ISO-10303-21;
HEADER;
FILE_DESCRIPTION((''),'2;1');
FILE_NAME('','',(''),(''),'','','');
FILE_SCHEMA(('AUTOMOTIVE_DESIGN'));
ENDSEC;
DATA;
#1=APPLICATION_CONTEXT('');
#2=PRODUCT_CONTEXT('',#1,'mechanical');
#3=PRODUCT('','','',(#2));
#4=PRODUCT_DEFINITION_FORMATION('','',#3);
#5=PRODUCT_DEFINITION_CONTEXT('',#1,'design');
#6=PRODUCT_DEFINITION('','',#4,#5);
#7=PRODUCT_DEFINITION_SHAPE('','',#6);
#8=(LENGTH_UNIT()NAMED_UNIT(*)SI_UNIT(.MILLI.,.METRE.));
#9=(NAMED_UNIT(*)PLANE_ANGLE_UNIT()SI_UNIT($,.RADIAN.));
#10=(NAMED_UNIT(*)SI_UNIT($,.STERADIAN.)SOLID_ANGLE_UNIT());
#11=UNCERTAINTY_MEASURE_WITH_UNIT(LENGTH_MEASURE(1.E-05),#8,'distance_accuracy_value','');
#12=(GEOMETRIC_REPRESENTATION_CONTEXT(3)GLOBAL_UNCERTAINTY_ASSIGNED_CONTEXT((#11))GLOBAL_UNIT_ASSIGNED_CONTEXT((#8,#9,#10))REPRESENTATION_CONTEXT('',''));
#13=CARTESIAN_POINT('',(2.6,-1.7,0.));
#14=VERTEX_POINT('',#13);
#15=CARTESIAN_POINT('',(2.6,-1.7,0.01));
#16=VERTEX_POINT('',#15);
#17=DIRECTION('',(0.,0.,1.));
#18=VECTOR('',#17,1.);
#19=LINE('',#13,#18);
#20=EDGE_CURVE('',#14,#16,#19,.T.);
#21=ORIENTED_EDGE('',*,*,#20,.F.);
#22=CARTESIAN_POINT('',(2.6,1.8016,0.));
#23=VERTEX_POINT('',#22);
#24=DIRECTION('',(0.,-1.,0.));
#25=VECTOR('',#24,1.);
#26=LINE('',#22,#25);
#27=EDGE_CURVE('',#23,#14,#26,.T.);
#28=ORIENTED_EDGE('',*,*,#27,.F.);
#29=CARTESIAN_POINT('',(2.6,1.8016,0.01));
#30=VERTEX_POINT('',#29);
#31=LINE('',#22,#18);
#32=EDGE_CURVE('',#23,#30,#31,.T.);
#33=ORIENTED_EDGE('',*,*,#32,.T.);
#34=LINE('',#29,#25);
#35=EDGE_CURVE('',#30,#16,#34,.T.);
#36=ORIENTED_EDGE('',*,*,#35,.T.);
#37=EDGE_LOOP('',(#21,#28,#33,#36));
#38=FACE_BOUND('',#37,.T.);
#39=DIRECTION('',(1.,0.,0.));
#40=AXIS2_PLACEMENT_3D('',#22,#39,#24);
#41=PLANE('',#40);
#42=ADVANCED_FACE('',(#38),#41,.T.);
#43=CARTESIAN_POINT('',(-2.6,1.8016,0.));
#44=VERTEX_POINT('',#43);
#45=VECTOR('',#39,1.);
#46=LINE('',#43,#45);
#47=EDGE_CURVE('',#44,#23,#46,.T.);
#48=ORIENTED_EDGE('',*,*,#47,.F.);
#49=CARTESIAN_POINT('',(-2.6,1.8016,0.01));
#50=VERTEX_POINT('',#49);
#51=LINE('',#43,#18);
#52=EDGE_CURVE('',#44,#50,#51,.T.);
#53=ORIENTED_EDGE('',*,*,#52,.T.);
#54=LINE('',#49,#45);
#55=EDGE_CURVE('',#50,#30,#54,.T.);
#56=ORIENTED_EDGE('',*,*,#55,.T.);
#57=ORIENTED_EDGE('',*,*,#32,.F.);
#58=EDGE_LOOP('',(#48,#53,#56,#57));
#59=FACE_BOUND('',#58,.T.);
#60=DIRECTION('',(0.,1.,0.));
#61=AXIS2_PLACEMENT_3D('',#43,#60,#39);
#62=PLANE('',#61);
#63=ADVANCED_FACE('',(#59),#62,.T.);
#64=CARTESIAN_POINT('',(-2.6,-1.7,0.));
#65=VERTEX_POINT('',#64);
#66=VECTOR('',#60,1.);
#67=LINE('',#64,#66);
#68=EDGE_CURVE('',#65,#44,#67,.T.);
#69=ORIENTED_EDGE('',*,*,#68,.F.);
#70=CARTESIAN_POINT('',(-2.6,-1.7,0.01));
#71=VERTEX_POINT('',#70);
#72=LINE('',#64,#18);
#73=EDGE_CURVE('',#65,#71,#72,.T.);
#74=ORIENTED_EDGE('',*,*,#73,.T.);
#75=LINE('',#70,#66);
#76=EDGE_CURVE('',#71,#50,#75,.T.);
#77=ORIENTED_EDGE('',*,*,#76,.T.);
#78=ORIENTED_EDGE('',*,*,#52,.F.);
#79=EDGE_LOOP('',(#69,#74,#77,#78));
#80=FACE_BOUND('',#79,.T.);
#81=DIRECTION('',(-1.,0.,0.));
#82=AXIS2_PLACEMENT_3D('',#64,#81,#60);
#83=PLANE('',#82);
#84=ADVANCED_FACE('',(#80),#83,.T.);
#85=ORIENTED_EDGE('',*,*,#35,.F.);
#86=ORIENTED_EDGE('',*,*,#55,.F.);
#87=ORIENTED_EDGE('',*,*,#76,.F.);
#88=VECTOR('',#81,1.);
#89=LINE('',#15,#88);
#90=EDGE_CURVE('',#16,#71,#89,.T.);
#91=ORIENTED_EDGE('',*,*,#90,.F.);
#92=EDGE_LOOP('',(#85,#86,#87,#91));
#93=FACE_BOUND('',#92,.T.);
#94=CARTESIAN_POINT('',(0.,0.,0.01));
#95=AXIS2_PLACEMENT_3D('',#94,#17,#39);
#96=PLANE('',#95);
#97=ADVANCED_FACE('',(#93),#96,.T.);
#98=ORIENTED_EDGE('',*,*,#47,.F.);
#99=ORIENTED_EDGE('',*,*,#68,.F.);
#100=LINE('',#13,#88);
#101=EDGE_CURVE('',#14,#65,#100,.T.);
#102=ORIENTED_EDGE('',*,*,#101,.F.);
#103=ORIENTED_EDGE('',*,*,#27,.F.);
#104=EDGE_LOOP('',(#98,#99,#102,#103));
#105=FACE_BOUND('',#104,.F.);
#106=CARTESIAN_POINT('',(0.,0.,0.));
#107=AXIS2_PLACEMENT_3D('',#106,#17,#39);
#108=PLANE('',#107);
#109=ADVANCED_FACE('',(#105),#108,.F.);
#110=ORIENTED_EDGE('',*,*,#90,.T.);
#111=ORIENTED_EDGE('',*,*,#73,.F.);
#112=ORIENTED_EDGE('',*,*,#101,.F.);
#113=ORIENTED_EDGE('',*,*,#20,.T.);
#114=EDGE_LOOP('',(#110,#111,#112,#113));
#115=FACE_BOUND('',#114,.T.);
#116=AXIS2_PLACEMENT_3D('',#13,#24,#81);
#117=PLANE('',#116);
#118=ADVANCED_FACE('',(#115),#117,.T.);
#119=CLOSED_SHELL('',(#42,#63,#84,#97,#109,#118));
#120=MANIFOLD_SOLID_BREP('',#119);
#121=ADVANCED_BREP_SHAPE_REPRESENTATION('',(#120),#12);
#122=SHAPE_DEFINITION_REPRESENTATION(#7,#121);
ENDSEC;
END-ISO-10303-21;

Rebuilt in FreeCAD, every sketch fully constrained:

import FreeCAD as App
import Part
import Sketcher

V = App.Vector
Q = App.Units.Quantity


def add_polygon(sketch, points):
    """Adds a closed chain of lines whose ends are joined by coincident constraints."""
    first, n = sketch.GeometryCount, len(points)
    for a, b in zip(points, points[1:] + points[:1]):
        sketch.addGeometry(Part.LineSegment(App.Vector(*a, 0), App.Vector(*b, 0)), False)
    for i in range(n):
        sketch.addConstraint(Sketcher.Constraint("Coincident", first + i, 2, first + (i + 1) % n, 1))

doc = App.newDocument("Part")
body = doc.addObject("PartDesign::Body", "Body")

sketch1 = body.newObject("Sketcher::SketchObject", "Sketch")
sketch1.AttachmentSupport = (doc.getObject("XY_Plane"), [""])
sketch1.MapMode = "FlatFace"
add_polygon(sketch1, [(2.6, 1.8), (-2.6, 1.8), (-2.6, -1.7), (2.6, -1.7)])
sketch1.addConstraint([
    Sketcher.Constraint("Horizontal", 0),
    Sketcher.Constraint("Vertical", 1),
    Sketcher.Constraint("Horizontal", 2),
    Sketcher.Constraint("Vertical", 3),
    Sketcher.Constraint("DistanceX", 0, 2, 0, 1, Q("5.2 mm")),
    Sketcher.Constraint("DistanceX", 0, 2, -1, 1, Q("2.6 mm")),
    Sketcher.Constraint("DistanceY", 1, 2, -1, 1, Q("1.7 mm")),
    Sketcher.Constraint("DistanceY", 1, 2, 1, 1, Q("3.5016 mm")),
])
pad1 = body.newObject("PartDesign::Pad", "Pad")
pad1.Profile = sketch1
pad1.Length = 0.01

doc.recompute()
